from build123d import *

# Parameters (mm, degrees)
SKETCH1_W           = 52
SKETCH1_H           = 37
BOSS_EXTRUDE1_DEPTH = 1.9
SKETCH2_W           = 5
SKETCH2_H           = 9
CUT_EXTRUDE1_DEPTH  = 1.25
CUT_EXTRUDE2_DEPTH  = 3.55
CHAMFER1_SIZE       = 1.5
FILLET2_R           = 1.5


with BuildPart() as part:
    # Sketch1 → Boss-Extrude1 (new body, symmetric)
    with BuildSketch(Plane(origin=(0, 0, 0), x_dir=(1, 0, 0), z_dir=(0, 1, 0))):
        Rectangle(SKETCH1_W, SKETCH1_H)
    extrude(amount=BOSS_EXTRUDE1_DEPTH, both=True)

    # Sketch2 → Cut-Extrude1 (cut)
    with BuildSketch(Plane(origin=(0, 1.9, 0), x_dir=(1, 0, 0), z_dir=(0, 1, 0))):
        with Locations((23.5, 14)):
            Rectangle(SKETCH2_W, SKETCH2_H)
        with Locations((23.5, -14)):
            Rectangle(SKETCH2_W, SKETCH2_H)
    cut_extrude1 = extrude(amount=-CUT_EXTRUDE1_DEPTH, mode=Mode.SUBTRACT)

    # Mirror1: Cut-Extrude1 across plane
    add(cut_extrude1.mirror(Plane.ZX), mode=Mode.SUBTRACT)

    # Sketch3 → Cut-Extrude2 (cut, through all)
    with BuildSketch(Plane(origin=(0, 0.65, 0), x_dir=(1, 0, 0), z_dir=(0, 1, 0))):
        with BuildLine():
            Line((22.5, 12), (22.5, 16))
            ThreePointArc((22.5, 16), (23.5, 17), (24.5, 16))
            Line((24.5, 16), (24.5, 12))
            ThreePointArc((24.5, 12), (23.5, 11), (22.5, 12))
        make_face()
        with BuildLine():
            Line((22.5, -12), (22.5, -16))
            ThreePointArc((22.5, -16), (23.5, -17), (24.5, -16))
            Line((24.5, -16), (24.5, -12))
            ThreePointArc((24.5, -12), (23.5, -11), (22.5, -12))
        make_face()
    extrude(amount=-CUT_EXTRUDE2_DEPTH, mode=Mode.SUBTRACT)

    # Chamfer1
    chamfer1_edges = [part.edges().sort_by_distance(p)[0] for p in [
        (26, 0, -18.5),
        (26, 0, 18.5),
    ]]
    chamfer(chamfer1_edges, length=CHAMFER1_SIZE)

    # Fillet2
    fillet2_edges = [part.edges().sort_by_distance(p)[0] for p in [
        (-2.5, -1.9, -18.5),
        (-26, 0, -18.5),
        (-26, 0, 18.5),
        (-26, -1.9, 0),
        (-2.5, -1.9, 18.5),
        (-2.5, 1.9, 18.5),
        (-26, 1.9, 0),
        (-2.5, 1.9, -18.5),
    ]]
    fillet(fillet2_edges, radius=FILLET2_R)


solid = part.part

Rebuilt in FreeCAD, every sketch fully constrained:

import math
import FreeCAD as App
import Part
import Sketcher
from FreeCAD import Vector


def edges_at(feature, points):
    """Names of the edges that pass closest to the given points."""
    edges = feature.Shape.Edges
    near = lambda p: min(range(len(edges)), key=lambda i: edges[i].distToShape(Part.Vertex(*p))[0])
    return sorted({f"Edge{near(p) + 1}" for p in points})


def add_polygon(sketch, points):
    """Adds a closed chain of lines whose ends are joined by coincident constraints."""
    first, n = sketch.GeometryCount, len(points)
    for a, b in zip(points, points[1:] + points[:1]):
        sketch.addGeometry(Part.LineSegment(App.Vector(*a, 0), App.Vector(*b, 0)), False)
    for i in range(n):
        sketch.addConstraint(Sketcher.Constraint("Coincident", first + i, 2, first + (i + 1) % n, 1))

doc = App.newDocument("Part")
params = doc.addObject("Spreadsheet::Sheet", "Params")
for row, (alias, value) in enumerate([
    ("sketch1_width", "52 mm"),
    ("sketch1_height", "37 mm"),
    ("pad1_length", "3.8 mm"),
    ("sketch2_width", "5 mm"),
    ("sketch2_height", "9 mm"),
    ("pocket1_length", "1.25 mm"),
    ("sketch3_radius", "1 mm"),
    ("sketch3_height", "4 mm"),
    ("chamfer_size", "1.5 mm"),
    ("fillet_radius", "1.5 mm"),
], start=1):
    params.set(f"A{row}", alias)
    params.set(f"B{row}", "=" + value)
    params.setAlias(f"B{row}", alias)

body = doc.addObject("PartDesign::Body", "Body")

sketch1 = body.newObject("Sketcher::SketchObject", "Sketch")
sketch1.AttachmentSupport = (doc.getObject("XZ_Plane"), [""])
sketch1.MapMode = "FlatFace"
add_polygon(sketch1, [(-26, -18.5), (-26, 18.5), (26, 18.5), (26, -18.5)])
sketch1.addConstraint([
    Sketcher.Constraint("Vertical", 0),
    Sketcher.Constraint("Horizontal", 1),
    Sketcher.Constraint("Vertical", 2),
    Sketcher.Constraint("Horizontal", 3),
    Sketcher.Constraint("Symmetric", 0, 2, 2, 2, -1, 1),
    Sketcher.Constraint("DistanceX", 1, 1, 1, 2, 52.0),
    Sketcher.Constraint("DistanceY", 0, 1, 0, 2, 37.0),
])
sketch1.setExpression("Constraints[9]", "Params.sketch1_width")
sketch1.setExpression("Constraints[10]", "Params.sketch1_height")
pad1 = body.newObject("PartDesign::Pad", "Pad")
pad1.Profile = sketch1
pad1.setExpression("Length", "Params.pad1_length")
pad1.Midplane = True

sketch2 = body.newObject("Sketcher::SketchObject", "Sketch001")
sketch2.AttachmentSupport = (doc.getObject("XZ_Plane"), [""])
sketch2.MapMode = "FlatFace"
sketch2.AttachmentOffset = App.Placement(Vector(0, 0, -1.9), App.Rotation())
add_polygon(sketch2, [(21, -18.5), (21, -9.5), (26, -9.5), (26, -18.5)])
add_polygon(sketch2, [(21, 9.5), (21, 18.5), (26, 18.5), (26, 9.5)])
sketch2.addConstraint([
    Sketcher.Constraint("Vertical", 0),
    Sketcher.Constraint("Horizontal", 1),
    Sketcher.Constraint("Vertical", 2),
    Sketcher.Constraint("Horizontal", 3),
    Sketcher.Constraint("Vertical", 4),
    Sketcher.Constraint("Horizontal", 5),
    Sketcher.Constraint("Vertical", 6),
    Sketcher.Constraint("Horizontal", 7),
    Sketcher.Constraint("Symmetric", 3, 2, 4, 2, -1),
    Sketcher.Constraint("Symmetric", 1, 2, 6, 2, -1),
    Sketcher.Constraint("DistanceX", 1, 1, 1, 2, 5.0),
    Sketcher.Constraint("DistanceY", 0, 1, 0, 2, 9.0),
    Sketcher.Constraint("DistanceX", -1, 1, 0, 2, 21.0),
    Sketcher.Constraint("DistanceY", 0, 2, 4, 2, 28.0),
])
sketch2.setExpression("Constraints[18]", "Params.sketch2_width")
sketch2.setExpression("Constraints[19]", "Params.sketch2_height")
pocket1 = body.newObject("PartDesign::Pocket", "Pocket")
pocket1.Profile = sketch2
pocket1.setExpression("Length", "Params.pocket1_length")
pocket1.Reversed = True
doc.recompute()

mirrored = body.newObject("PartDesign::Mirrored", "Mirrored")
mirrored.Originals = [pocket1]
mirrored.MirrorPlane = (doc.getObject("XZ_Plane"), [""])
body.Tip = mirrored

sketch3 = body.newObject("Sketcher::SketchObject", "Sketch002")
sketch3.AttachmentSupport = (doc.getObject("XZ_Plane"), [""])
sketch3.MapMode = "FlatFace"
sketch3.AttachmentOffset = App.Placement(Vector(0, 0, -0.65), App.Rotation())
sketch3.addGeometry([
    Part.LineSegment(Vector(22.5, -16, 0), Vector(22.5, -12, 0)),
    Part.ArcOfCircle(Part.Circle(Vector(23.5, -12, 0), Vector(0, 0, 1), 1), math.radians(0), math.radians(180)),
    Part.LineSegment(Vector(24.5, -12, 0), Vector(24.5, -16, 0)),
    Part.ArcOfCircle(Part.Circle(Vector(23.5, -16, 0), Vector(0, 0, 1), 1), math.radians(180), math.radians(360)),
    Part.LineSegment(Vector(22.5, 12, 0), Vector(22.5, 16, 0)),
    Part.ArcOfCircle(Part.Circle(Vector(23.5, 16, 0), Vector(0, 0, 1), 1), math.radians(0), math.radians(180)),
    Part.LineSegment(Vector(24.5, 16, 0), Vector(24.5, 12, 0)),
    Part.ArcOfCircle(Part.Circle(Vector(23.5, 12, 0), Vector(0, 0, 1), 1), math.radians(180), math.radians(360)),
], False)
sketch3.addConstraint([
    Sketcher.Constraint("Tangent", 0, 2, 1, 2),
    Sketcher.Constraint("Tangent", 1, 1, 2, 1),
    Sketcher.Constraint("Tangent", 2, 2, 3, 2),
    Sketcher.Constraint("Tangent", 3, 1, 0, 1),
    Sketcher.Constraint("Tangent", 4, 2, 5, 2),
    Sketcher.Constraint("Tangent", 5, 1, 6, 1),
    Sketcher.Constraint("Tangent", 6, 2, 7, 2),
    Sketcher.Constraint("Tangent", 7, 1, 4, 1),
    Sketcher.Constraint("Vertical", 0),
    Sketcher.Constraint("Vertical", 2),
    Sketcher.Constraint("Vertical", 4),
    Sketcher.Constraint("Vertical", 6),
    Sketcher.Constraint("Equal", 3, 5),
    Sketcher.Constraint("Symmetric", 3, 3, 5, 3, -1),
    Sketcher.Constraint("Equal", 2, 4),
    Sketcher.Constraint("Radius", 1, 1.0),
    Sketcher.Constraint("DistanceY", 0, 1, 0, 2, 4.0),
    Sketcher.Constraint("DistanceY", 1, 3, -1, 1, 12.0),
    Sketcher.Constraint("DistanceX", -1, 1, 1, 3, 23.5),
])
sketch3.setExpression("Constraints[15]", "Params.sketch3_radius")
sketch3.setExpression("Constraints[16]", "Params.sketch3_height")
pocket2 = body.newObject("PartDesign::Pocket", "Pocket001")
pocket2.Profile = sketch3
pocket2.Type = "ThroughAll"
pocket2.Reversed = True
doc.recompute()

chamfer = body.newObject("PartDesign::Chamfer", "Chamfer")
chamfer.Base = (pocket2, edges_at(pocket2, [(26, 0, -18.5), (26, 0, 18.5)]))
chamfer.setExpression("Size", "Params.chamfer_size")
doc.recompute()

fillet = body.newObject("PartDesign::Fillet", "Fillet")
fillet.Base = (chamfer, edges_at(chamfer, [
    (-2.5, -1.9, -18.5),
    (-26, 0, -18.5),
    (-26, 0, 18.5),
    (-26, -1.9, 0),
    (-2.5, -1.9, 18.5),
    (-2.5, 1.9, 18.5),
    (-26, 1.9, 0),
    (-2.5, 1.9, -18.5),
]))
fillet.setExpression("Radius", "Params.fillet_radius")

doc.recompute()
